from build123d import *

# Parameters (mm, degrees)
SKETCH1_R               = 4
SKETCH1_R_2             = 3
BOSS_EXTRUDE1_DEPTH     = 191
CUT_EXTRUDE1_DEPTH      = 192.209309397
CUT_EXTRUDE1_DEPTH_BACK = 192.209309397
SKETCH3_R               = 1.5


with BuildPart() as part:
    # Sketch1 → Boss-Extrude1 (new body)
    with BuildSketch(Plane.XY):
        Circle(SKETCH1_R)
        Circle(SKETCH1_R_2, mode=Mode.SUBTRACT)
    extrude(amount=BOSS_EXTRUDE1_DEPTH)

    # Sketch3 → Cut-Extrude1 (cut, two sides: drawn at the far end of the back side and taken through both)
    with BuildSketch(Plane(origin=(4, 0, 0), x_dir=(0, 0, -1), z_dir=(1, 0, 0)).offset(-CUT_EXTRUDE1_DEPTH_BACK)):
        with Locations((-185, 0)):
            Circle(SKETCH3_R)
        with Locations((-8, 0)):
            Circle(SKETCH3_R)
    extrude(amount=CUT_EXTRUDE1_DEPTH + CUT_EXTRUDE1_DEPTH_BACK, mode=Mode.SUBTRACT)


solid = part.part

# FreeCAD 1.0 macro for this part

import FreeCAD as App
import Part
import Sketcher
from FreeCAD import Vector
Q = App.Units.Quantity

doc = App.newDocument("Part")
params = doc.addObject("Spreadsheet::Sheet", "Params")
for row, (alias, value) in enumerate([
    ("sketch1_diameter", "8 mm"),
    ("sketch1_diameter2", "6 mm"),
    ("pad1_length", "191 mm"),
    ("sketch2_diameter", "3 mm"),
], start=1):
    params.set(f"A{row}", alias)
    params.set(f"B{row}", "=" + value)
    params.setAlias(f"B{row}", alias)

body = doc.addObject("PartDesign::Body", "Body")

sketch1 = doc.addObject("Sketcher::SketchObject", "Sketch")
body.addObject(sketch1)
sketch1.AttachmentSupport = (doc.XY_Plane, [""])
sketch1.MapMode = "FlatFace"
sketch1.addGeometry(Part.Circle(Vector(0, 0, 0), Vector(0, 0, 1), 4), False)
sketch1.addGeometry(Part.Circle(Vector(0, 0, 0), Vector(0, 0, 1), 3), False)
sketch1.addConstraint(Sketcher.Constraint("Coincident", 0, 3, -1, 1))
sketch1.addConstraint(Sketcher.Constraint("Coincident", 1, 3, -1, 1))
sketch1.addConstraint(Sketcher.Constraint("Diameter", 0, Q("8 mm")))
sketch1.addConstraint(Sketcher.Constraint("Diameter", 1, Q("6 mm")))
sketch1.setExpression("Constraints[2]", "Params.sketch1_diameter")
sketch1.setExpression("Constraints[3]", "Params.sketch1_diameter2")
pad1 = doc.addObject("PartDesign::Pad", "Pad")
body.addObject(pad1)
pad1.Profile = sketch1
pad1.setExpression("Length", "Params.pad1_length")

sketch2 = doc.addObject("Sketcher::SketchObject", "Sketch001")
body.addObject(sketch2)
sketch2.AttachmentSupport = (doc.YZ_Plane, [""])
sketch2.MapMode = "FlatFace"
sketch2.AttachmentOffset = App.Placement(Vector(0, 0, 4), App.Rotation())
sketch2.addGeometry(Part.Circle(Vector(0, 185, 0), Vector(0, 0, 1), 1.5), False)
sketch2.addGeometry(Part.Circle(Vector(0, 8, 0), Vector(0, 0, 1), 1.5), False)
sketch2.addConstraint(Sketcher.Constraint("Equal", 0, 1))
sketch2.addConstraint(Sketcher.Constraint("PointOnObject", 0, 3, -2))
sketch2.addConstraint(Sketcher.Constraint("PointOnObject", 1, 3, -2))
sketch2.addConstraint(Sketcher.Constraint("Diameter", 0, Q("3 mm")))
sketch2.addConstraint(Sketcher.Constraint("DistanceY", -1, 1, 0, 3, Q("185 mm")))
sketch2.addConstraint(Sketcher.Constraint("DistanceY", -1, 1, 1, 3, Q("8 mm")))
sketch2.setExpression("Constraints[3]", "Params.sketch2_diameter")
pocket1 = doc.addObject("PartDesign::Pocket", "Pocket")
body.addObject(pocket1)
pocket1.Profile = sketch2
pocket1.Type = "ThroughAll"
pocket1.Midplane = True

doc.recompute()
